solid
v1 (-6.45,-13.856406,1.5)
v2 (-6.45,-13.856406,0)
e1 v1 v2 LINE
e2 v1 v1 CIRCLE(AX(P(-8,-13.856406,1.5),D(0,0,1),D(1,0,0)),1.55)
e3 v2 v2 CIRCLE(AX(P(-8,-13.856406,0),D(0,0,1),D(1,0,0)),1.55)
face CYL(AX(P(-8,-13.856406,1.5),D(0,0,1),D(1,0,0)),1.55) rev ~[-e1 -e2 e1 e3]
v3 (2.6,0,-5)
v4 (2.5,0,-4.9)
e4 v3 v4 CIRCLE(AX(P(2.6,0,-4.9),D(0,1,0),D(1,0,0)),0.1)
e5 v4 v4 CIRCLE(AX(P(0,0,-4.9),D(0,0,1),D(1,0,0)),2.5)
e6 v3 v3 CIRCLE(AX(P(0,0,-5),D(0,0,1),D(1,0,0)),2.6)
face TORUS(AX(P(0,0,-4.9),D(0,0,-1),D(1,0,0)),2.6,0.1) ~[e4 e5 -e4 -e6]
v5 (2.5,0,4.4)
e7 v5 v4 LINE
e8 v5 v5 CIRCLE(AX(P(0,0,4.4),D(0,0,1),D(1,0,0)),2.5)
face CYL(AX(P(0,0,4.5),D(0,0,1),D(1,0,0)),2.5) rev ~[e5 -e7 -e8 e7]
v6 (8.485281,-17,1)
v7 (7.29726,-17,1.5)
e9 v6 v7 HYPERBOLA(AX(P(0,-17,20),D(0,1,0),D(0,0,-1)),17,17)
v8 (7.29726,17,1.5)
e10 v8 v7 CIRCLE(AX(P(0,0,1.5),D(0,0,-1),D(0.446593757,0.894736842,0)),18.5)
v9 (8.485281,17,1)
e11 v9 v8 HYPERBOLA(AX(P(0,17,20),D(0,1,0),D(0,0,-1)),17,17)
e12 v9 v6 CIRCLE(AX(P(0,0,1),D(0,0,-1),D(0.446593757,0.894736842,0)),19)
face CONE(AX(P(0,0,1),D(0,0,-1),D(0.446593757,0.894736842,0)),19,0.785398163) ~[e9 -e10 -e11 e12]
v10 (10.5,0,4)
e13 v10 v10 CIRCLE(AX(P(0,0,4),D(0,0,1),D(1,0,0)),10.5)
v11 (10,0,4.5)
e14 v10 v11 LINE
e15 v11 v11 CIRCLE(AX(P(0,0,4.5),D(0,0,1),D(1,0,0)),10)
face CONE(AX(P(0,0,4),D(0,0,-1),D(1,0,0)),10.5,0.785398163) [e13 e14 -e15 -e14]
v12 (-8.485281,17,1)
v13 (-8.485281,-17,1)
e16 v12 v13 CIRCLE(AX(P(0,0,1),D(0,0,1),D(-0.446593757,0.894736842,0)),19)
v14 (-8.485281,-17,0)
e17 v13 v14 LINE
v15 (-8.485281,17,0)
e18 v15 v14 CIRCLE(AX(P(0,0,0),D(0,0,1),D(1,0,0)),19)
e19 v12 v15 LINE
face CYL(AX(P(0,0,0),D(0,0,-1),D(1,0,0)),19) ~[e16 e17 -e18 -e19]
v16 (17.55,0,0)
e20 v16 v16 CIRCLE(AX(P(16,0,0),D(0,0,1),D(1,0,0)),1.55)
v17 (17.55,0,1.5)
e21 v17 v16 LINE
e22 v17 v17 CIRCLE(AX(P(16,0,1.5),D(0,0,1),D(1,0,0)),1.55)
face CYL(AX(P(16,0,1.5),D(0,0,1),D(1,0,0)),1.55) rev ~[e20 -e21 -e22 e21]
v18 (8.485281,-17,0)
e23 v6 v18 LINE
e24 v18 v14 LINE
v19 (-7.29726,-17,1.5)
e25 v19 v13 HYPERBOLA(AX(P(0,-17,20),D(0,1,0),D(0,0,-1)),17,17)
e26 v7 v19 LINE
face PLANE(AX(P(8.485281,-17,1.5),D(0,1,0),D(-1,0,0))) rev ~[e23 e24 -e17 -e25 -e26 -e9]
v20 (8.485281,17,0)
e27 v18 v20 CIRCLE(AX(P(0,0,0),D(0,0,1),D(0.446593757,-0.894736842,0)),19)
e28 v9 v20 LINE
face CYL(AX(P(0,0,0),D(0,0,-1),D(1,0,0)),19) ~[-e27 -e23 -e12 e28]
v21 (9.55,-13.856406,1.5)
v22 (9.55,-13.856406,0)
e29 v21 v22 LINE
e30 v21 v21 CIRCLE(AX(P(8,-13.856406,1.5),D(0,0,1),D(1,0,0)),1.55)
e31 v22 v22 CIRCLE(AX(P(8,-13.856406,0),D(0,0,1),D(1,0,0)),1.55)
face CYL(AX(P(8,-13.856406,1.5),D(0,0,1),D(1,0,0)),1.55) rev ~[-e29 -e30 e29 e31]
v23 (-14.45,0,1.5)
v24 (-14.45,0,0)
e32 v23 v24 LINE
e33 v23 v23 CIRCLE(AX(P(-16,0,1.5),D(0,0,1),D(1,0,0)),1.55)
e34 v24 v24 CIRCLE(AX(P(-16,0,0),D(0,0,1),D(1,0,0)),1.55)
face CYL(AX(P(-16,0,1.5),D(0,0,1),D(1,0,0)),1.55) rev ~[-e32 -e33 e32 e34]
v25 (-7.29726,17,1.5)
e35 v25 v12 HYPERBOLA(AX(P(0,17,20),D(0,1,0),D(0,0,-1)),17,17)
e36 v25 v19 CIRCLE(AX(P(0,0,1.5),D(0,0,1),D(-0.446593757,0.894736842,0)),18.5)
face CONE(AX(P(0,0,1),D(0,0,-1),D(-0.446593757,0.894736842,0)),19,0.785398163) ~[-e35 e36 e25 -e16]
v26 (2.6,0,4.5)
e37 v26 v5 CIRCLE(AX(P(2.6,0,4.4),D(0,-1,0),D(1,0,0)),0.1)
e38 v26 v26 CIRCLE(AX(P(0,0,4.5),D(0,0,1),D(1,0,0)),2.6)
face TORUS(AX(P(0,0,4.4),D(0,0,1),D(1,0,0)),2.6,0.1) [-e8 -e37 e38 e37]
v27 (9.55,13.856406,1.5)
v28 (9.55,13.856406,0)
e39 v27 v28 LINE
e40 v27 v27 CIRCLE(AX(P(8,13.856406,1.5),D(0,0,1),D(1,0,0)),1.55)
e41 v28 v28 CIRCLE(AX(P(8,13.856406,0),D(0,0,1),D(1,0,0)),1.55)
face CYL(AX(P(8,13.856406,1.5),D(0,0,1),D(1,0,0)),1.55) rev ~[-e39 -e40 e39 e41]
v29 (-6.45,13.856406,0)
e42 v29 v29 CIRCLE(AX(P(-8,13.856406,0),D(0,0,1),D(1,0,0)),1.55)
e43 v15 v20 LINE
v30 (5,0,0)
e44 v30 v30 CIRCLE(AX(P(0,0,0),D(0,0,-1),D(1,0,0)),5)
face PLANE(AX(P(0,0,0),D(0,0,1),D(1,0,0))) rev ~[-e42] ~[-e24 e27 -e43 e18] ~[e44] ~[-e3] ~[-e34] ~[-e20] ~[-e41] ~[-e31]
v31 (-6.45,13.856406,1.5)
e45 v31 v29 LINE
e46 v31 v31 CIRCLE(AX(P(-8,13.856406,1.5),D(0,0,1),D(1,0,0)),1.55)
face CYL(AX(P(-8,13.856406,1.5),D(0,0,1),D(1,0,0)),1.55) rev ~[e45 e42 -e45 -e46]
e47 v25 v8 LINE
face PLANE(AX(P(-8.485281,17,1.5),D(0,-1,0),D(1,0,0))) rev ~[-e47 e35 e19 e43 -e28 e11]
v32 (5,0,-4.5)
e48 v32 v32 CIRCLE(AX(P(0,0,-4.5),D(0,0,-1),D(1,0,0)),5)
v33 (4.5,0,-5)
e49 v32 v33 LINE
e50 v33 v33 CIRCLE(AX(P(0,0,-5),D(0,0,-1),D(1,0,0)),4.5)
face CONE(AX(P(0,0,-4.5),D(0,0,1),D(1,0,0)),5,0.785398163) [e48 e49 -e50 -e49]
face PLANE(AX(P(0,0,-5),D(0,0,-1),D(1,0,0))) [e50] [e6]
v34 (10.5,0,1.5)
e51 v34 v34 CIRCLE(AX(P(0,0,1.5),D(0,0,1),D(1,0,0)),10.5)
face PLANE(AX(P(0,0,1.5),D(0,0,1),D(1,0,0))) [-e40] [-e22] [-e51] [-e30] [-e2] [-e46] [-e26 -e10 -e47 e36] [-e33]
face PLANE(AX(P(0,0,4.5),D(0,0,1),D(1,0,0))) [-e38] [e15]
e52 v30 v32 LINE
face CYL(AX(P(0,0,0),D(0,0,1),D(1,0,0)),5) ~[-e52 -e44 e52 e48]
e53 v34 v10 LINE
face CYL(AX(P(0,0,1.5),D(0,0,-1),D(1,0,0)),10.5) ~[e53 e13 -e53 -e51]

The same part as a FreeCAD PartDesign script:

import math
import FreeCAD as App
import Part
import Sketcher
from FreeCAD import Vector
Q = App.Units.Quantity


def edges_at(feature, points):
    """Names of the edges that pass closest to the given points."""
    edges = feature.Shape.Edges
    near = lambda p: min(range(len(edges)), key=lambda i: edges[i].distToShape(Part.Vertex(*p))[0])
    return sorted({f"Edge{near(p) + 1}" for p in points})

doc = App.newDocument("Part")
body = doc.addObject("PartDesign::Body", "Body")

# Sketch on XY plane
sketch1 = body.newObject("Sketcher::SketchObject", "Sketch")
sketch1.AttachmentSupport = (doc.getObject("XY_Plane"), [""])
sketch1.MapMode = "FlatFace"
sketch1.addGeometry(Part.Circle(Vector(0, 0, 0), Vector(0, 0, 1), 19), False)
sketch1.addConstraint([
    Sketcher.Constraint("Coincident", 0, 3, -1, 1),
    Sketcher.Constraint("Diameter", 0, Q("38 mm")),
])
pad1 = body.newObject("PartDesign::Pad", "Pad")
pad1.Profile = sketch1
pad1.Length = 1.5

# Sketch on XY plane
sketch2 = body.newObject("Sketcher::SketchObject", "Sketch001")
sketch2.AttachmentSupport = (doc.getObject("XY_Plane"), [""])
sketch2.MapMode = "FlatFace"
sketch2.AttachmentOffset = App.Placement(Vector(0, 0, 1.5), App.Rotation())
sketch2.addGeometry([
    Part.ArcOfCircle(Part.Circle(Vector(0, 0, 0), Vector(0, 0, 1), 19), math.radians(63), math.radians(117)),  # 0
    Part.LineSegment(Vector(-8.5, 17, 0), Vector(8.5, 17, 0)),  # 1
    Part.LineSegment(Vector(8.5, -17, 0), Vector(-8.5, -17, 0)),  # 2
    Part.ArcOfCircle(Part.Circle(Vector(0, 0, 0), Vector(0, 0, 1), 19), math.radians(-117), math.radians(-63)),  # 3
    Part.Circle(Vector(-8, 13.9, 0), Vector(0, 0, 1), 1.6),  # 4
    Part.Circle(Vector(8, 13.9, 0), Vector(0, 0, 1), 1.6),  # 5
    Part.Circle(Vector(16, 0, 0), Vector(0, 0, 1), 1.6),  # 6
    Part.Circle(Vector(8, -13.9, 0), Vector(0, 0, 1), 1.6),  # 7
    Part.Circle(Vector(-8, -13.9, 0), Vector(0, 0, 1), 1.6),  # 8
    Part.Circle(Vector(-16, 0, 0), Vector(0, 0, 1), 1.6),  # 9
], False)
sketch2.addConstraint([
    Sketcher.Constraint("Coincident", 0, 1, 1, 2),
    Sketcher.Constraint("Coincident", 1, 1, 0, 2),
    Sketcher.Constraint("Coincident", 2, 1, 3, 2),
    Sketcher.Constraint("Coincident", 3, 1, 2, 2),
    Sketcher.Constraint("Horizontal", 1),
    Sketcher.Constraint("Horizontal", 2),
    Sketcher.Constraint("Coincident", 0, 3, -1, 1),
    Sketcher.Constraint("Coincident", 3, 3, -1, 1),
    Sketcher.Constraint("Equal", 0, 3),
    Sketcher.Constraint("Equal", 4, 5),
    Sketcher.Constraint("Equal", 5, 6),
    Sketcher.Constraint("Equal", 6, 7),
    Sketcher.Constraint("Equal", 7, 8),
    Sketcher.Constraint("Equal", 8, 9),
    Sketcher.Constraint("Symmetric", 4, 3, 7, 3, -1, 1),
    Sketcher.Constraint("Symmetric", 5, 3, 8, 3, -1, 1),
    Sketcher.Constraint("Symmetric", 6, 3, 9, 3, -1, 1),
    Sketcher.Constraint("Symmetric", 4, 3, 5, 3, -2),
    Sketcher.Constraint("PointOnObject", 6, 3, -1),
    Sketcher.Constraint("Vertical", 0, 1, 2, 1),
    Sketcher.Constraint("Radius", 0, Q("19 mm")),
    Sketcher.Constraint("Diameter", 4, Q("3.1 mm")),
    Sketcher.Constraint("DistanceX", 4, 3, -1, 1, Q("8 mm")),
    Sketcher.Constraint("DistanceX", -1, 1, 6, 3, Q("16 mm")),
    Sketcher.Constraint("DistanceY", -1, 1, 0, 1, Q("17 mm")),
    Sketcher.Constraint("DistanceY", -1, 1, 4, 3, Q("13.856406 mm")),
])
pocket1 = body.newObject("PartDesign::Pocket", "Pocket")
pocket1.Profile = sketch2
pocket1.Length = 6.5

# Sketch on XY plane
sketch3 = body.newObject("Sketcher::SketchObject", "Sketch002")
sketch3.AttachmentSupport = (doc.getObject("XY_Plane"), [""])
sketch3.MapMode = "FlatFace"
sketch3.AttachmentOffset = App.Placement(Vector(0, 0, 1.5), App.Rotation())
sketch3.addGeometry(Part.Circle(Vector(0, 0, 0), Vector(0, 0, 1), 10), False)
sketch3.addConstraint([
    Sketcher.Constraint("Coincident", 0, 3, -1, 1),
    Sketcher.Constraint("Diameter", 0, Q("21 mm")),
])
pad2 = body.newObject("PartDesign::Pad", "Pad001")
pad2.Profile = sketch3
pad2.Length = 3

# Sketch on XY plane
sketch4 = body.newObject("Sketcher::SketchObject", "Sketch003")
sketch4.AttachmentSupport = (doc.getObject("XY_Plane"), [""])
sketch4.MapMode = "FlatFace"
sketch4.addGeometry(Part.Circle(Vector(0, 0, 0), Vector(0, 0, 1), 5), False)
sketch4.addConstraint([
    Sketcher.Constraint("Coincident", 0, 3, -1, 1),
    Sketcher.Constraint("Diameter", 0, Q("10 mm")),
])
pad3 = body.newObject("PartDesign::Pad", "Pad002")
pad3.Profile = sketch4
pad3.Length = 5
pad3.Reversed = True

# Sketch on XY plane
sketch5 = body.newObject("Sketcher::SketchObject", "Sketch004")
sketch5.AttachmentSupport = (doc.getObject("XY_Plane"), [""])
sketch5.MapMode = "FlatFace"
sketch5.AttachmentOffset = App.Placement(Vector(0, 0, 4.5), App.Rotation())
sketch5.addGeometry(Part.Circle(Vector(0, 0, 0), Vector(0, 0, 1), 2.5), False)
sketch5.addConstraint([
    Sketcher.Constraint("Coincident", 0, 3, -1, 1),
    Sketcher.Constraint("Diameter", 0, Q("5 mm")),
])
pocket2 = body.newObject("PartDesign::Pocket", "Pocket001")
pocket2.Profile = sketch5
pocket2.Type = "ThroughAll"
doc.recompute()

chamfer = body.newObject("PartDesign::Chamfer", "Chamfer")
chamfer.Base = (pocket2, edges_at(pocket2, [
    (-19, 0, 1.5),
    (19, 0, 1.5),
    (-10.5, 0, 4.5),
    (-5, 0, -5),
]))
chamfer.Size = 0.5
doc.recompute()

fillet = body.newObject("PartDesign::Fillet", "Fillet")
fillet.Base = (chamfer, edges_at(chamfer, [(-2.5, 0, -5), (-2.5, 0, 4.5)]))
fillet.Radius = 0.1

doc.recompute()
